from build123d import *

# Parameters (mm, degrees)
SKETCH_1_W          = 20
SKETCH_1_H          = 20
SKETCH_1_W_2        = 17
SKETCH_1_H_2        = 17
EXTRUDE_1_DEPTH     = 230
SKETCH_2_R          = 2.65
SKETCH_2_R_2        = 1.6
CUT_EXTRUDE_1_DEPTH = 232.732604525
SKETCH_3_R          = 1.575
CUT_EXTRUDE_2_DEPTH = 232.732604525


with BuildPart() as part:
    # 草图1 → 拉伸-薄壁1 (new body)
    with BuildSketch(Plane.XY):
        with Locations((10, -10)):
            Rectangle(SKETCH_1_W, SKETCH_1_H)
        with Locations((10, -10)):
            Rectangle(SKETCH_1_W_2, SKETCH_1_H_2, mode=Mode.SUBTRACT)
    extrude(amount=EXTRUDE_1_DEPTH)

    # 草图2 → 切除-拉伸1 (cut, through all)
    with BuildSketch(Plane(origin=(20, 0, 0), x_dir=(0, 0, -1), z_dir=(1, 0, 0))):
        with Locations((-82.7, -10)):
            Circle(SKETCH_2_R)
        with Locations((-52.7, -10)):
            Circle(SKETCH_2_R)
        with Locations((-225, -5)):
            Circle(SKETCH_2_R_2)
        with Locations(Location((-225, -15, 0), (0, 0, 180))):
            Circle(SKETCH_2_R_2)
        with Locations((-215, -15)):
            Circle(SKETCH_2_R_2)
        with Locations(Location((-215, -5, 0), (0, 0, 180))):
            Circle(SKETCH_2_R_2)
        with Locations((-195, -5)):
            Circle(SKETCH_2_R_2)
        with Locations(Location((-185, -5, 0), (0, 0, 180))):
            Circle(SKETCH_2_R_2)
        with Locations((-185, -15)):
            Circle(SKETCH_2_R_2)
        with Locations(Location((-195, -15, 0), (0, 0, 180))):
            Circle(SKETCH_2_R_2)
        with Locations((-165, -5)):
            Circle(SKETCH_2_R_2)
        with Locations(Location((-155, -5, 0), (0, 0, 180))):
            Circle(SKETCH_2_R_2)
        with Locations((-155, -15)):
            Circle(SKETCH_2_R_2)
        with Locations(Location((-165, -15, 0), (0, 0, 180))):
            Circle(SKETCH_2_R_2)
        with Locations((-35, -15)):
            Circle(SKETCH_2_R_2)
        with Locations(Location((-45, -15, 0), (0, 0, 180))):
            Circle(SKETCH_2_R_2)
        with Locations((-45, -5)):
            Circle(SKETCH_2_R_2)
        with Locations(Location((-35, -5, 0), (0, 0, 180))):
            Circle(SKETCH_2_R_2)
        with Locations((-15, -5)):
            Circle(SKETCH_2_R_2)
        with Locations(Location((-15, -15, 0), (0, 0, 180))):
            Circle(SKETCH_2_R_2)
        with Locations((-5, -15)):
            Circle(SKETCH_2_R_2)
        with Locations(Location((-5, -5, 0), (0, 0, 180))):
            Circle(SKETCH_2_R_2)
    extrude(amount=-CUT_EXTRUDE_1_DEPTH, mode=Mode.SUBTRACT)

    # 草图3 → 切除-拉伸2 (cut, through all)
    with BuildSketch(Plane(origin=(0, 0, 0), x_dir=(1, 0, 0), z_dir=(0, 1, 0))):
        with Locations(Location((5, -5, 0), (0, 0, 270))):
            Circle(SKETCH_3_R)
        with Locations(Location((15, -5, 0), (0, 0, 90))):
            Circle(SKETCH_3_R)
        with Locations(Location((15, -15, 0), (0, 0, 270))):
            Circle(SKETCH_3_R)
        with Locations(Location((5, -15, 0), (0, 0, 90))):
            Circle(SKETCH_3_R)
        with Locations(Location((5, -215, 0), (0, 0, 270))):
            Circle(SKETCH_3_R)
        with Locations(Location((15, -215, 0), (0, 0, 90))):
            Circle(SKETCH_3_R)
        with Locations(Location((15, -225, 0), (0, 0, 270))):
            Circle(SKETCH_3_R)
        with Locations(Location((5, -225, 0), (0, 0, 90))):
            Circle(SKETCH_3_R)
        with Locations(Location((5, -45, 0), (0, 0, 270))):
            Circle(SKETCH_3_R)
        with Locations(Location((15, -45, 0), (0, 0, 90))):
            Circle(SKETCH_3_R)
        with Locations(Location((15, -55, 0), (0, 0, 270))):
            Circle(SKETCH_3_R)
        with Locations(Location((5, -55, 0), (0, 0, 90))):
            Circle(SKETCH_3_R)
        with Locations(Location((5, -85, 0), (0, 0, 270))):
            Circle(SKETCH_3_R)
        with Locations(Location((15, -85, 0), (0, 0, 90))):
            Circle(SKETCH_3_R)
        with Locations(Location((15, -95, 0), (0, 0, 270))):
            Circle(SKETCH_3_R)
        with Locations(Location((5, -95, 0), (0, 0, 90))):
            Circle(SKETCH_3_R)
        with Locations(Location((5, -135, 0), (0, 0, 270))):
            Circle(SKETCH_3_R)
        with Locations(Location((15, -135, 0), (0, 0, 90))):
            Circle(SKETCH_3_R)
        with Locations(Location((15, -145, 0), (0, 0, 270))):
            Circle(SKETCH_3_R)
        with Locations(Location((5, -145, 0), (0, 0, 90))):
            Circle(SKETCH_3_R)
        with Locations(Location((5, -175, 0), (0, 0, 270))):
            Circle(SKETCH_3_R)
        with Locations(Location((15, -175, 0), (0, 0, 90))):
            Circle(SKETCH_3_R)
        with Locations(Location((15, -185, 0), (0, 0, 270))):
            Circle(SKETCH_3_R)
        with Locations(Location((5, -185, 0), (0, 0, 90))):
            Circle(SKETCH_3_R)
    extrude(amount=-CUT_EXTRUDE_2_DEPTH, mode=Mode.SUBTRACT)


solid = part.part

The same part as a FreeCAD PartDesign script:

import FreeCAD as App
import Part
import Sketcher
from FreeCAD import Vector
Q = App.Units.Quantity


def add_polygon(sketch, points):
    """Adds a closed chain of lines whose ends are joined by coincident constraints."""
    first, n = sketch.GeometryCount, len(points)
    for a, b in zip(points, points[1:] + points[:1]):
        sketch.addGeometry(Part.LineSegment(App.Vector(*a, 0), App.Vector(*b, 0)), False)
    for i in range(n):
        sketch.addConstraint(Sketcher.Constraint("Coincident", first + i, 2, first + (i + 1) % n, 1))

doc = App.newDocument("Part")
body = doc.addObject("PartDesign::Body", "Body")

sketch1 = body.newObject("Sketcher::SketchObject", "Sketch")
sketch1.AttachmentSupport = (doc.getObject("XY_Plane"), [""])
sketch1.MapMode = "FlatFace"
add_polygon(sketch1, [(0, 0), (0, -20), (20, -20), (20, 0)])
add_polygon(sketch1, [(18, -18), (2, -18), (2, -2), (18, -2)])
sketch1.addConstraint([
    Sketcher.Constraint("Vertical", 0),
    Sketcher.Constraint("Horizontal", 1),
    Sketcher.Constraint("Vertical", 2),
    Sketcher.Constraint("Horizontal", 3),
    Sketcher.Constraint("Horizontal", 4),
    Sketcher.Constraint("Vertical", 5),
    Sketcher.Constraint("Horizontal", 6),
    Sketcher.Constraint("Vertical", 7),
    Sketcher.Constraint("Coincident", 3, 2, -1, 1),
    Sketcher.Constraint("Equal", 3, 0),
    Sketcher.Constraint("Equal", 6, 5),
    Sketcher.Constraint("DistanceX", 1, 1, 1, 2, Q("20 mm")),
    Sketcher.Constraint("DistanceX", 4, 2, 4, 1, Q("17 mm")),
    Sketcher.Constraint("DistanceX", -1, 1, 4, 2, Q("1.5 mm")),
    Sketcher.Constraint("DistanceY", 4, 2, -1, 1, Q("18.5 mm")),
])
pad1 = body.newObject("PartDesign::Pad", "Pad")
pad1.Profile = sketch1
pad1.Length = 230

sketch2 = body.newObject("Sketcher::SketchObject", "Sketch001")
sketch2.AttachmentSupport = (doc.getObject("YZ_Plane"), [""])
sketch2.MapMode = "FlatFace"
sketch2.AttachmentOffset = App.Placement(Vector(0, 0, 20), App.Rotation())
sketch2.addGeometry([
    Part.Circle(Vector(-10, 82.7, 0), Vector(0, 0, 1), 2.6),
    Part.Circle(Vector(-10, 52.7, 0), Vector(0, 0, 1), 2.6),
    Part.Circle(Vector(-5, 225, 0), Vector(0, 0, 1), 1.6),
    Part.Circle(Vector(-15, 225, 0), Vector(0, 0, 1), 1.6),
    Part.Circle(Vector(-15, 215, 0), Vector(0, 0, 1), 1.6),
    Part.Circle(Vector(-5, 215, 0), Vector(0, 0, 1), 1.6),
    Part.Circle(Vector(-5, 195, 0), Vector(0, 0, 1), 1.6),
    Part.Circle(Vector(-5, 185, 0), Vector(0, 0, 1), 1.6),
    Part.Circle(Vector(-15, 185, 0), Vector(0, 0, 1), 1.6),
    Part.Circle(Vector(-15, 195, 0), Vector(0, 0, 1), 1.6),
    Part.Circle(Vector(-5, 165, 0), Vector(0, 0, 1), 1.6),
    Part.Circle(Vector(-5, 155, 0), Vector(0, 0, 1), 1.6),
    Part.Circle(Vector(-15, 155, 0), Vector(0, 0, 1), 1.6),
    Part.Circle(Vector(-15, 165, 0), Vector(0, 0, 1), 1.6),
    Part.Circle(Vector(-15, 35, 0), Vector(0, 0, 1), 1.6),
    Part.Circle(Vector(-15, 45, 0), Vector(0, 0, 1), 1.6),
    Part.Circle(Vector(-5, 45, 0), Vector(0, 0, 1), 1.6),
    Part.Circle(Vector(-5, 35, 0), Vector(0, 0, 1), 1.6),
    Part.Circle(Vector(-5, 15, 0), Vector(0, 0, 1), 1.6),
    Part.Circle(Vector(-15, 15, 0), Vector(0, 0, 1), 1.6),
    Part.Circle(Vector(-15, 5, 0), Vector(0, 0, 1), 1.6),
    Part.Circle(Vector(-5, 5, 0), Vector(0, 0, 1), 1.6),
], False)
sketch2.addConstraint([
    Sketcher.Constraint("Equal", 0, 1),
    Sketcher.Constraint("Equal", 2, 3),
    Sketcher.Constraint("Equal", 3, 4),
    Sketcher.Constraint("Equal", 4, 5),
    Sketcher.Constraint("Equal", 5, 6),
    Sketcher.Constraint("Equal", 6, 7),
    Sketcher.Constraint("Equal", 7, 8),
    Sketcher.Constraint("Equal", 8, 9),
    Sketcher.Constraint("Equal", 9, 10),
    Sketcher.Constraint("Equal", 10, 11),
    Sketcher.Constraint("Equal", 11, 12),
    Sketcher.Constraint("Equal", 12, 13),
    Sketcher.Constraint("Equal", 13, 14),
    Sketcher.Constraint("Equal", 14, 15),
    Sketcher.Constraint("Equal", 15, 16),
    Sketcher.Constraint("Equal", 16, 17),
    Sketcher.Constraint("Equal", 17, 18),
    Sketcher.Constraint("Equal", 18, 19),
    Sketcher.Constraint("Equal", 19, 20),
    Sketcher.Constraint("Equal", 20, 21),
    Sketcher.Constraint("Horizontal", 2, 3, 3, 3),
    Sketcher.Constraint("Horizontal", 4, 3, 5, 3),
    Sketcher.Constraint("Horizontal", 7, 3, 8, 3),
    Sketcher.Constraint("Horizontal", 6, 3, 9, 3),
    Sketcher.Constraint("Horizontal", 11, 3, 12, 3),
    Sketcher.Constraint("Horizontal", 10, 3, 13, 3),
    Sketcher.Constraint("Horizontal", 15, 3, 16, 3),
    Sketcher.Constraint("Horizontal", 14, 3, 17, 3),
    Sketcher.Constraint("Horizontal", 18, 3, 19, 3),
    Sketcher.Constraint("Horizontal", 20, 3, 21, 3),
    Sketcher.Constraint("Vertical", 0, 3, 1, 3),
    Sketcher.Constraint("Vertical", 3, 3, 4, 3),
    Sketcher.Constraint("Vertical", 2, 3, 5, 3),
    Sketcher.Constraint("Vertical", 5, 3, 6, 3),
    Sketcher.Constraint("Vertical", 6, 3, 7, 3),
    Sketcher.Constraint("Vertical", 4, 3, 8, 3),
    Sketcher.Constraint("Vertical", 8, 3, 9, 3),
    Sketcher.Constraint("Vertical", 7, 3, 10, 3),
    Sketcher.Constraint("Vertical", 10, 3, 11, 3),
    Sketcher.Constraint("Vertical", 9, 3, 12, 3),
    Sketcher.Constraint("Vertical", 12, 3, 13, 3),
    Sketcher.Constraint("Vertical", 13, 3, 14, 3),
    Sketcher.Constraint("Vertical", 14, 3, 15, 3),
    Sketcher.Constraint("Vertical", 11, 3, 16, 3),
    Sketcher.Constraint("Vertical", 16, 3, 17, 3),
    Sketcher.Constraint("Vertical", 17, 3, 18, 3),
    Sketcher.Constraint("Vertical", 15, 3, 19, 3),
    Sketcher.Constraint("Vertical", 19, 3, 20, 3),
    Sketcher.Constraint("Vertical", 18, 3, 21, 3),
    Sketcher.Constraint("Diameter", 0, Q("5.3 mm")),
    Sketcher.Constraint("Diameter", 2, Q("3.2 mm")),
    Sketcher.Constraint("DistanceX", 0, 3, -1, 1, Q("10 mm")),
    Sketcher.Constraint("DistanceX", 2, 3, -1, 1, Q("5 mm")),
    Sketcher.Constraint("DistanceY", -1, 1, 2, 3, Q("225 mm")),
    Sketcher.Constraint("DistanceX", 3, 3, -1, 1, Q("15 mm")),
    Sketcher.Constraint("DistanceY", -1, 1, 4, 3, Q("215 mm")),
    Sketcher.Constraint("DistanceY", -1, 1, 6, 3, Q("195 mm")),
    Sketcher.Constraint("DistanceY", -1, 1, 7, 3, Q("185 mm")),
    Sketcher.Constraint("DistanceY", -1, 1, 10, 3, Q("165 mm")),
    Sketcher.Constraint("DistanceY", -1, 1, 11, 3, Q("155 mm")),
    Sketcher.Constraint("DistanceY", -1, 1, 14, 3, Q("35 mm")),
    Sketcher.Constraint("DistanceY", -1, 1, 15, 3, Q("45 mm")),
    Sketcher.Constraint("DistanceY", -1, 1, 18, 3, Q("15 mm")),
    Sketcher.Constraint("DistanceY", -1, 1, 20, 3, Q("5 mm")),
    Sketcher.Constraint("DistanceY", 1, 3, 0, 3, Q("30 mm")),
    Sketcher.Constraint("DistanceY", -1, 1, 0, 3, Q("82.7 mm")),
])
pocket1 = body.newObject("PartDesign::Pocket", "Pocket")
pocket1.Profile = sketch2
pocket1.Type = "ThroughAll"

sketch3 = body.newObject("Sketcher::SketchObject", "Sketch002")
sketch3.AttachmentSupport = (doc.getObject("XZ_Plane"), [""])
sketch3.MapMode = "FlatFace"
sketch3.addGeometry([
    Part.Circle(Vector(5, 5, 0), Vector(0, 0, 1), 1.6),
    Part.Circle(Vector(15, 5, 0), Vector(0, 0, 1), 1.6),
    Part.Circle(Vector(15, 15, 0), Vector(0, 0, 1), 1.6),
    Part.Circle(Vector(5, 15, 0), Vector(0, 0, 1), 1.6),
    Part.Circle(Vector(5, 215, 0), Vector(0, 0, 1), 1.6),
    Part.Circle(Vector(15, 215, 0), Vector(0, 0, 1), 1.6),
    Part.Circle(Vector(15, 225, 0), Vector(0, 0, 1), 1.6),
    Part.Circle(Vector(5, 225, 0), Vector(0, 0, 1), 1.6),
    Part.Circle(Vector(5, 45, 0), Vector(0, 0, 1), 1.6),
    Part.Circle(Vector(15, 45, 0), Vector(0, 0, 1), 1.6),
    Part.Circle(Vector(15, 55, 0), Vector(0, 0, 1), 1.6),
    Part.Circle(Vector(5, 55, 0), Vector(0, 0, 1), 1.6),
    Part.Circle(Vector(5, 85, 0), Vector(0, 0, 1), 1.6),
    Part.Circle(Vector(15, 85, 0), Vector(0, 0, 1), 1.6),
    Part.Circle(Vector(15, 95, 0), Vector(0, 0, 1), 1.6),
    Part.Circle(Vector(5, 95, 0), Vector(0, 0, 1), 1.6),
    Part.Circle(Vector(5, 135, 0), Vector(0, 0, 1), 1.6),
    Part.Circle(Vector(15, 135, 0), Vector(0, 0, 1), 1.6),
    Part.Circle(Vector(15, 145, 0), Vector(0, 0, 1), 1.6),
    Part.Circle(Vector(5, 145, 0), Vector(0, 0, 1), 1.6),
    Part.Circle(Vector(5, 175, 0), Vector(0, 0, 1), 1.6),
    Part.Circle(Vector(15, 175, 0), Vector(0, 0, 1), 1.6),
    Part.Circle(Vector(15, 185, 0), Vector(0, 0, 1), 1.6),
    Part.Circle(Vector(5, 185, 0), Vector(0, 0, 1), 1.6),
], False)
sketch3.addConstraint([
    Sketcher.Constraint("Equal", 0, 1),
    Sketcher.Constraint("Equal", 1, 2),
    Sketcher.Constraint("Equal", 2, 3),
    Sketcher.Constraint("Equal", 3, 4),
    Sketcher.Constraint("Equal", 4, 5),
    Sketcher.Constraint("Equal", 5, 6),
    Sketcher.Constraint("Equal", 6, 7),
    Sketcher.Constraint("Equal", 7, 8),
    Sketcher.Constraint("Equal", 8, 9),
    Sketcher.Constraint("Equal", 9, 10),
    Sketcher.Constraint("Equal", 10, 11),
    Sketcher.Constraint("Equal", 11, 12),
    Sketcher.Constraint("Equal", 12, 13),
    Sketcher.Constraint("Equal", 13, 14),
    Sketcher.Constraint("Equal", 14, 15),
    Sketcher.Constraint("Equal", 15, 16),
    Sketcher.Constraint("Equal", 16, 17),
    Sketcher.Constraint("Equal", 17, 18),
    Sketcher.Constraint("Equal", 18, 19),
    Sketcher.Constraint("Equal", 19, 20),
    Sketcher.Constraint("Equal", 20, 21),
    Sketcher.Constraint("Equal", 21, 22),
    Sketcher.Constraint("Equal", 22, 23),
    Sketcher.Constraint("Horizontal", 0, 3, 1, 3),
    Sketcher.Constraint("Horizontal", 2, 3, 3, 3),
    Sketcher.Constraint("Horizontal", 4, 3, 5, 3),
    Sketcher.Constraint("Horizontal", 6, 3, 7, 3),
    Sketcher.Constraint("Horizontal", 8, 3, 9, 3),
    Sketcher.Constraint("Horizontal", 10, 3, 11, 3),
    Sketcher.Constraint("Horizontal", 12, 3, 13, 3),
    Sketcher.Constraint("Horizontal", 14, 3, 15, 3),
    Sketcher.Constraint("Horizontal", 16, 3, 17, 3),
    Sketcher.Constraint("Horizontal", 18, 3, 19, 3),
    Sketcher.Constraint("Horizontal", 20, 3, 21, 3),
    Sketcher.Constraint("Horizontal", 22, 3, 23, 3),
    Sketcher.Constraint("Vertical", 1, 3, 2, 3),
    Sketcher.Constraint("Vertical", 0, 3, 3, 3),
    Sketcher.Constraint("Vertical", 3, 3, 4, 3),
    Sketcher.Constraint("Vertical", 2, 3, 5, 3),
    Sketcher.Constraint("Vertical", 5, 3, 6, 3),
    Sketcher.Constraint("Vertical", 4, 3, 7, 3),
    Sketcher.Constraint("Vertical", 7, 3, 8, 3),
    Sketcher.Constraint("Vertical", 6, 3, 9, 3),
    Sketcher.Constraint("Vertical", 9, 3, 10, 3),
    Sketcher.Constraint("Vertical", 8, 3, 11, 3),
    Sketcher.Constraint("Vertical", 11, 3, 12, 3),
    Sketcher.Constraint("Vertical", 10, 3, 13, 3),
    Sketcher.Constraint("Vertical", 13, 3, 14, 3),
    Sketcher.Constraint("Vertical", 12, 3, 15, 3),
    Sketcher.Constraint("Vertical", 15, 3, 16, 3),
    Sketcher.Constraint("Vertical", 14, 3, 17, 3),
    Sketcher.Constraint("Vertical", 17, 3, 18, 3),
    Sketcher.Constraint("Vertical", 16, 3, 19, 3),
    Sketcher.Constraint("Vertical", 19, 3, 20, 3),
    Sketcher.Constraint("Vertical", 18, 3, 21, 3),
    Sketcher.Constraint("Vertical", 21, 3, 22, 3),
    Sketcher.Constraint("Vertical", 20, 3, 23, 3),
    Sketcher.Constraint("Diameter", 0, Q("3.15 mm")),
    Sketcher.Constraint("DistanceX", -1, 1, 0, 3, Q("5 mm")),
    Sketcher.Constraint("DistanceY", -1, 1, 0, 3, Q("5 mm")),
    Sketcher.Constraint("DistanceX", -1, 1, 1, 3, Q("15 mm")),
    Sketcher.Constraint("DistanceY", -1, 1, 2, 3, Q("15 mm")),
    Sketcher.Constraint("DistanceY", -1, 1, 4, 3, Q("215 mm")),
    Sketcher.Constraint("DistanceY", -1, 1, 6, 3, Q("225 mm")),
    Sketcher.Constraint("DistanceY", -1, 1, 8, 3, Q("45 mm")),
    Sketcher.Constraint("DistanceY", -1, 1, 10, 3, Q("55 mm")),
    Sketcher.Constraint("DistanceY", -1, 1, 12, 3, Q("85 mm")),
    Sketcher.Constraint("DistanceY", -1, 1, 14, 3, Q("95 mm")),
    Sketcher.Constraint("DistanceY", -1, 1, 16, 3, Q("135 mm")),
    Sketcher.Constraint("DistanceY", -1, 1, 18, 3, Q("145 mm")),
    Sketcher.Constraint("DistanceY", -1, 1, 20, 3, Q("175 mm")),
    Sketcher.Constraint("DistanceY", -1, 1, 22, 3, Q("185 mm")),
])
pocket2 = body.newObject("PartDesign::Pocket", "Pocket001")
pocket2.Profile = sketch3
pocket2.Type = "ThroughAll"
pocket2.Reversed = True

doc.recompute()
